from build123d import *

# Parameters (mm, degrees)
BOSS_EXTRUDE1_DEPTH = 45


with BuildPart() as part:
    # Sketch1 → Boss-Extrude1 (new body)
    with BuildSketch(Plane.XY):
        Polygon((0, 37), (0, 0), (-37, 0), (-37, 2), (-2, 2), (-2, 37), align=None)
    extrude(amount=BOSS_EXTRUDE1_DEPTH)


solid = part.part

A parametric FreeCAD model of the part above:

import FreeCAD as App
import Part
import Sketcher

V = App.Vector
Q = App.Units.Quantity

doc = App.newDocument("Part")
body = doc.addObject("PartDesign::Body", "Body")

sketch1 = body.newObject("Sketcher::SketchObject", "Sketch")
sketch1.AttachmentSupport = (doc.getObject("XY_Plane"), [""])
sketch1.MapMode = "FlatFace"
sketch1.addGeometry(Part.LineSegment(V(0, 0, 0), V(0, 37, 0)), False)
sketch1.addGeometry(Part.LineSegment(V(0, 37, 0), V(-2, 37, 0)), False)
sketch1.addGeometry(Part.LineSegment(V(-2, 37, 0), V(-2, 2, 0)), False)
sketch1.addGeometry(Part.LineSegment(V(-2, 2, 0), V(-37, 2, 0)), False)
sketch1.addGeometry(Part.LineSegment(V(-37, 2, 0), V(-37, 0, 0)), False)
sketch1.addGeometry(Part.LineSegment(V(-37, 0, 0), V(0, 0, 0)), False)
sketch1.addConstraint(Sketcher.Constraint("Coincident", 0, 2, 1, 1))
sketch1.addConstraint(Sketcher.Constraint("Coincident", 1, 2, 2, 1))
sketch1.addConstraint(Sketcher.Constraint("Coincident", 2, 2, 3, 1))
sketch1.addConstraint(Sketcher.Constraint("Coincident", 3, 2, 4, 1))
sketch1.addConstraint(Sketcher.Constraint("Coincident", 4, 2, 5, 1))
sketch1.addConstraint(Sketcher.Constraint("Coincident", 5, 2, 0, 1))
sketch1.addConstraint(Sketcher.Constraint("Vertical", 0))
sketch1.addConstraint(Sketcher.Constraint("Horizontal", 1))
sketch1.addConstraint(Sketcher.Constraint("Vertical", 2))
sketch1.addConstraint(Sketcher.Constraint("Horizontal", 3))
sketch1.addConstraint(Sketcher.Constraint("Vertical", 4))
sketch1.addConstraint(Sketcher.Constraint("Horizontal", 5))
sketch1.addConstraint(Sketcher.Constraint("Coincident", 5, 2, -1, 1))
sketch1.addConstraint(Sketcher.Constraint("Equal", 5, 0))
sketch1.addConstraint(Sketcher.Constraint("Equal", 3, 2))
sketch1.addConstraint(Sketcher.Constraint("DistanceX", 1, 2, 1, 1, Q("2 mm")))
sketch1.addConstraint(Sketcher.Constraint("DistanceX", 3, 2, 3, 1, Q("35 mm")))
pad1 = body.newObject("PartDesign::Pad", "Pad")
pad1.Profile = sketch1
pad1.Length = 45

doc.recompute()
